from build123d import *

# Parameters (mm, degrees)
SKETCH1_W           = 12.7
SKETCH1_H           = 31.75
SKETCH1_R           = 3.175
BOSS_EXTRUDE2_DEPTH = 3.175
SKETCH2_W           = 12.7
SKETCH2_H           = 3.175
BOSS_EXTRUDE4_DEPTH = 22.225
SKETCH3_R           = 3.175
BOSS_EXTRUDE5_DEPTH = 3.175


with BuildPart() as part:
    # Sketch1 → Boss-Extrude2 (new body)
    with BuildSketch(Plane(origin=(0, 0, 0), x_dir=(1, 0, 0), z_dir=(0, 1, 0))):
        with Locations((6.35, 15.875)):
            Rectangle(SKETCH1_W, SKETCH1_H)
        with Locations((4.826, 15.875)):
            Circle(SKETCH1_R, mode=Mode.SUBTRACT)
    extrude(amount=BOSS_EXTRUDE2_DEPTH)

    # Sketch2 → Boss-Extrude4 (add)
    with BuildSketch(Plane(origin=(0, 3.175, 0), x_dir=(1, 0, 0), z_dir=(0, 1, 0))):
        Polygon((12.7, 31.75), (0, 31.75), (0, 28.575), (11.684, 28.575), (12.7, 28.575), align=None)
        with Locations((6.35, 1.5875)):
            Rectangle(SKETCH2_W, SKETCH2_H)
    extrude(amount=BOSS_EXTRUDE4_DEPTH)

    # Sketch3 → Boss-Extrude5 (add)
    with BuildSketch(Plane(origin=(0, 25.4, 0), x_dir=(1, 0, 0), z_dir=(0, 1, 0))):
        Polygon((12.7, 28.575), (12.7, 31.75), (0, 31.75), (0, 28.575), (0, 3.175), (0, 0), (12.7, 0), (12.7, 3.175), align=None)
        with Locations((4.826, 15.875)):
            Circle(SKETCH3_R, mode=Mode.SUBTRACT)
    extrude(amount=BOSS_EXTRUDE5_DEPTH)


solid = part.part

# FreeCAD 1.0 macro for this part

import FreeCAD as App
import Part
import Sketcher

V = App.Vector
Q = App.Units.Quantity

doc = App.newDocument("Part")
body = doc.addObject("PartDesign::Body", "Body")

# Sketch on XZ plane
sketch1 = doc.addObject("Sketcher::SketchObject", "Sketch")
body.addObject(sketch1)
sketch1.AttachmentSupport = (doc.XZ_Plane, [""])
sketch1.MapMode = "FlatFace"
sketch1.addGeometry(Part.LineSegment(V(0, -31.8, 0), V(0, 0, 0)), False)
sketch1.addGeometry(Part.LineSegment(V(0, 0, 0), V(12.7, 0, 0)), False)
sketch1.addGeometry(Part.LineSegment(V(12.7, 0, 0), V(12.7, -31.8, 0)), False)
sketch1.addGeometry(Part.LineSegment(V(12.7, -31.8, 0), V(0, -31.8, 0)), False)
sketch1.addGeometry(Part.Circle(V(4.8, -15.9, 0), V(0, 0, 1), 3.2), False)
sketch1.addConstraint(Sketcher.Constraint("Coincident", 0, 2, 1, 1))
sketch1.addConstraint(Sketcher.Constraint("Coincident", 1, 2, 2, 1))
sketch1.addConstraint(Sketcher.Constraint("Coincident", 2, 2, 3, 1))
sketch1.addConstraint(Sketcher.Constraint("Coincident", 3, 2, 0, 1))
sketch1.addConstraint(Sketcher.Constraint("Vertical", 0))
sketch1.addConstraint(Sketcher.Constraint("Horizontal", 1))
sketch1.addConstraint(Sketcher.Constraint("Vertical", 2))
sketch1.addConstraint(Sketcher.Constraint("Horizontal", 3))
sketch1.addConstraint(Sketcher.Constraint("Coincident", 0, 2, -1, 1))
sketch1.addConstraint(Sketcher.Constraint("Diameter", 4, Q("0.25 in")))
sketch1.addConstraint(Sketcher.Constraint("DistanceX", 1, 1, 1, 2, Q("0.5 in")))
sketch1.addConstraint(Sketcher.Constraint("DistanceY", 0, 1, 0, 2, Q("1.25 in")))
sketch1.addConstraint(Sketcher.Constraint("DistanceX", -1, 1, 4, 3, Q("0.19 in")))
sketch1.addConstraint(Sketcher.Constraint("DistanceY", 4, 3, -1, 1, Q("0.625 in")))
pad1 = doc.addObject("PartDesign::Pad", "Pad")
body.addObject(pad1)
pad1.Profile = sketch1
pad1.Length = Q("0.125 in")
pad1.Reversed = True

# Sketch on XZ plane
sketch2 = doc.addObject("Sketcher::SketchObject", "Sketch001")
body.addObject(sketch2)
sketch2.AttachmentSupport = (doc.XZ_Plane, [""])
sketch2.MapMode = "FlatFace"
sketch2.AttachmentOffset = App.Placement(V(0, 0, -0.125 * 25.4), App.Rotation())
sketch2.addGeometry(Part.LineSegment(V(12.7, -31.8, 0), V(0, -31.8, 0)), False)
sketch2.addGeometry(Part.LineSegment(V(0, -31.8, 0), V(0, -28.6, 0)), False)
sketch2.addGeometry(Part.LineSegment(V(0, -28.6, 0), V(12.7, -28.6, 0)), False)
sketch2.addGeometry(Part.LineSegment(V(12.7, -28.6, 0), V(12.7, -31.8, 0)), False)
sketch2.addGeometry(Part.LineSegment(V(0, -3.2, 0), V(0, 0, 0)), False)
sketch2.addGeometry(Part.LineSegment(V(0, 0, 0), V(12.7, 0, 0)), False)
sketch2.addGeometry(Part.LineSegment(V(12.7, 0, 0), V(12.7, -3.2, 0)), False)
sketch2.addGeometry(Part.LineSegment(V(12.7, -3.2, 0), V(0, -3.2, 0)), False)
sketch2.addConstraint(Sketcher.Constraint("Coincident", 0, 2, 1, 1))
sketch2.addConstraint(Sketcher.Constraint("Coincident", 1, 2, 2, 1))
sketch2.addConstraint(Sketcher.Constraint("Coincident", 2, 2, 3, 1))
sketch2.addConstraint(Sketcher.Constraint("Coincident", 3, 2, 0, 1))
sketch2.addConstraint(Sketcher.Constraint("Coincident", 4, 2, 5, 1))
sketch2.addConstraint(Sketcher.Constraint("Coincident", 5, 2, 6, 1))
sketch2.addConstraint(Sketcher.Constraint("Coincident", 6, 2, 7, 1))
sketch2.addConstraint(Sketcher.Constraint("Coincident", 7, 2, 4, 1))
sketch2.addConstraint(Sketcher.Constraint("Horizontal", 0))
sketch2.addConstraint(Sketcher.Constraint("Vertical", 1))
sketch2.addConstraint(Sketcher.Constraint("Horizontal", 2))
sketch2.addConstraint(Sketcher.Constraint("Vertical", 3))
sketch2.addConstraint(Sketcher.Constraint("Vertical", 4))
sketch2.addConstraint(Sketcher.Constraint("Horizontal", 5))
sketch2.addConstraint(Sketcher.Constraint("Vertical", 6))
sketch2.addConstraint(Sketcher.Constraint("Horizontal", 7))
sketch2.addConstraint(Sketcher.Constraint("Coincident", 4, 2, -1, 1))
sketch2.addConstraint(Sketcher.Constraint("PointOnObject", 0, 2, -2))
sketch2.addConstraint(Sketcher.Constraint("Vertical", 3, 2, 5, 2))
sketch2.addConstraint(Sketcher.Constraint("Equal", 3, 4))
sketch2.addConstraint(Sketcher.Constraint("DistanceX", 0, 2, 0, 1, Q("0.5 in")))
sketch2.addConstraint(Sketcher.Constraint("DistanceY", 2, 2, 6, 2, Q("1 in")))
sketch2.addConstraint(Sketcher.Constraint("DistanceY", 1, 1, 1, 2, Q("0.125 in")))
pad2 = doc.addObject("PartDesign::Pad", "Pad001")
body.addObject(pad2)
pad2.Profile = sketch2
pad2.Length = Q("0.875 in")
pad2.Reversed = True

# Sketch on XZ plane
sketch3 = doc.addObject("Sketcher::SketchObject", "Sketch002")
body.addObject(sketch3)
sketch3.AttachmentSupport = (doc.XZ_Plane, [""])
sketch3.MapMode = "FlatFace"
sketch3.AttachmentOffset = App.Placement(V(0, 0, -1 * 25.4), App.Rotation())
sketch3.addGeometry(Part.LineSegment(V(12.7, -31.8, 0), V(0, -31.8, 0)), False)
sketch3.addGeometry(Part.LineSegment(V(0, -31.8, 0), V(0, 0, 0)), False)
sketch3.addGeometry(Part.LineSegment(V(0, 0, 0), V(12.7, 0, 0)), False)
sketch3.addGeometry(Part.LineSegment(V(12.7, 0, 0), V(12.7, -31.8, 0)), False)
sketch3.addGeometry(Part.Circle(V(4.8, -15.9, 0), V(0, 0, 1), 3.2), False)
sketch3.addConstraint(Sketcher.Constraint("Coincident", 0, 2, 1, 1))
sketch3.addConstraint(Sketcher.Constraint("Coincident", 1, 2, 2, 1))
sketch3.addConstraint(Sketcher.Constraint("Coincident", 2, 2, 3, 1))
sketch3.addConstraint(Sketcher.Constraint("Coincident", 3, 2, 0, 1))
sketch3.addConstraint(Sketcher.Constraint("Horizontal", 0))
sketch3.addConstraint(Sketcher.Constraint("Vertical", 1))
sketch3.addConstraint(Sketcher.Constraint("Horizontal", 2))
sketch3.addConstraint(Sketcher.Constraint("Vertical", 3))
sketch3.addConstraint(Sketcher.Constraint("Coincident", 1, 2, -1, 1))
sketch3.addConstraint(Sketcher.Constraint("Diameter", 4, Q("0.25 in")))
sketch3.addConstraint(Sketcher.Constraint("DistanceX", 0, 2, 0, 1, Q("0.5 in")))
sketch3.addConstraint(Sketcher.Constraint("DistanceY", 1, 1, 1, 2, Q("1.25 in")))
sketch3.addConstraint(Sketcher.Constraint("DistanceX", -1, 1, 4, 3, Q("0.19 in")))
sketch3.addConstraint(Sketcher.Constraint("DistanceY", 4, 3, -1, 1, Q("0.625 in")))
pad3 = doc.addObject("PartDesign::Pad", "Pad002")
body.addObject(pad3)
pad3.Profile = sketch3
pad3.Length = Q("0.125 in")
pad3.Reversed = True

doc.recompute()
